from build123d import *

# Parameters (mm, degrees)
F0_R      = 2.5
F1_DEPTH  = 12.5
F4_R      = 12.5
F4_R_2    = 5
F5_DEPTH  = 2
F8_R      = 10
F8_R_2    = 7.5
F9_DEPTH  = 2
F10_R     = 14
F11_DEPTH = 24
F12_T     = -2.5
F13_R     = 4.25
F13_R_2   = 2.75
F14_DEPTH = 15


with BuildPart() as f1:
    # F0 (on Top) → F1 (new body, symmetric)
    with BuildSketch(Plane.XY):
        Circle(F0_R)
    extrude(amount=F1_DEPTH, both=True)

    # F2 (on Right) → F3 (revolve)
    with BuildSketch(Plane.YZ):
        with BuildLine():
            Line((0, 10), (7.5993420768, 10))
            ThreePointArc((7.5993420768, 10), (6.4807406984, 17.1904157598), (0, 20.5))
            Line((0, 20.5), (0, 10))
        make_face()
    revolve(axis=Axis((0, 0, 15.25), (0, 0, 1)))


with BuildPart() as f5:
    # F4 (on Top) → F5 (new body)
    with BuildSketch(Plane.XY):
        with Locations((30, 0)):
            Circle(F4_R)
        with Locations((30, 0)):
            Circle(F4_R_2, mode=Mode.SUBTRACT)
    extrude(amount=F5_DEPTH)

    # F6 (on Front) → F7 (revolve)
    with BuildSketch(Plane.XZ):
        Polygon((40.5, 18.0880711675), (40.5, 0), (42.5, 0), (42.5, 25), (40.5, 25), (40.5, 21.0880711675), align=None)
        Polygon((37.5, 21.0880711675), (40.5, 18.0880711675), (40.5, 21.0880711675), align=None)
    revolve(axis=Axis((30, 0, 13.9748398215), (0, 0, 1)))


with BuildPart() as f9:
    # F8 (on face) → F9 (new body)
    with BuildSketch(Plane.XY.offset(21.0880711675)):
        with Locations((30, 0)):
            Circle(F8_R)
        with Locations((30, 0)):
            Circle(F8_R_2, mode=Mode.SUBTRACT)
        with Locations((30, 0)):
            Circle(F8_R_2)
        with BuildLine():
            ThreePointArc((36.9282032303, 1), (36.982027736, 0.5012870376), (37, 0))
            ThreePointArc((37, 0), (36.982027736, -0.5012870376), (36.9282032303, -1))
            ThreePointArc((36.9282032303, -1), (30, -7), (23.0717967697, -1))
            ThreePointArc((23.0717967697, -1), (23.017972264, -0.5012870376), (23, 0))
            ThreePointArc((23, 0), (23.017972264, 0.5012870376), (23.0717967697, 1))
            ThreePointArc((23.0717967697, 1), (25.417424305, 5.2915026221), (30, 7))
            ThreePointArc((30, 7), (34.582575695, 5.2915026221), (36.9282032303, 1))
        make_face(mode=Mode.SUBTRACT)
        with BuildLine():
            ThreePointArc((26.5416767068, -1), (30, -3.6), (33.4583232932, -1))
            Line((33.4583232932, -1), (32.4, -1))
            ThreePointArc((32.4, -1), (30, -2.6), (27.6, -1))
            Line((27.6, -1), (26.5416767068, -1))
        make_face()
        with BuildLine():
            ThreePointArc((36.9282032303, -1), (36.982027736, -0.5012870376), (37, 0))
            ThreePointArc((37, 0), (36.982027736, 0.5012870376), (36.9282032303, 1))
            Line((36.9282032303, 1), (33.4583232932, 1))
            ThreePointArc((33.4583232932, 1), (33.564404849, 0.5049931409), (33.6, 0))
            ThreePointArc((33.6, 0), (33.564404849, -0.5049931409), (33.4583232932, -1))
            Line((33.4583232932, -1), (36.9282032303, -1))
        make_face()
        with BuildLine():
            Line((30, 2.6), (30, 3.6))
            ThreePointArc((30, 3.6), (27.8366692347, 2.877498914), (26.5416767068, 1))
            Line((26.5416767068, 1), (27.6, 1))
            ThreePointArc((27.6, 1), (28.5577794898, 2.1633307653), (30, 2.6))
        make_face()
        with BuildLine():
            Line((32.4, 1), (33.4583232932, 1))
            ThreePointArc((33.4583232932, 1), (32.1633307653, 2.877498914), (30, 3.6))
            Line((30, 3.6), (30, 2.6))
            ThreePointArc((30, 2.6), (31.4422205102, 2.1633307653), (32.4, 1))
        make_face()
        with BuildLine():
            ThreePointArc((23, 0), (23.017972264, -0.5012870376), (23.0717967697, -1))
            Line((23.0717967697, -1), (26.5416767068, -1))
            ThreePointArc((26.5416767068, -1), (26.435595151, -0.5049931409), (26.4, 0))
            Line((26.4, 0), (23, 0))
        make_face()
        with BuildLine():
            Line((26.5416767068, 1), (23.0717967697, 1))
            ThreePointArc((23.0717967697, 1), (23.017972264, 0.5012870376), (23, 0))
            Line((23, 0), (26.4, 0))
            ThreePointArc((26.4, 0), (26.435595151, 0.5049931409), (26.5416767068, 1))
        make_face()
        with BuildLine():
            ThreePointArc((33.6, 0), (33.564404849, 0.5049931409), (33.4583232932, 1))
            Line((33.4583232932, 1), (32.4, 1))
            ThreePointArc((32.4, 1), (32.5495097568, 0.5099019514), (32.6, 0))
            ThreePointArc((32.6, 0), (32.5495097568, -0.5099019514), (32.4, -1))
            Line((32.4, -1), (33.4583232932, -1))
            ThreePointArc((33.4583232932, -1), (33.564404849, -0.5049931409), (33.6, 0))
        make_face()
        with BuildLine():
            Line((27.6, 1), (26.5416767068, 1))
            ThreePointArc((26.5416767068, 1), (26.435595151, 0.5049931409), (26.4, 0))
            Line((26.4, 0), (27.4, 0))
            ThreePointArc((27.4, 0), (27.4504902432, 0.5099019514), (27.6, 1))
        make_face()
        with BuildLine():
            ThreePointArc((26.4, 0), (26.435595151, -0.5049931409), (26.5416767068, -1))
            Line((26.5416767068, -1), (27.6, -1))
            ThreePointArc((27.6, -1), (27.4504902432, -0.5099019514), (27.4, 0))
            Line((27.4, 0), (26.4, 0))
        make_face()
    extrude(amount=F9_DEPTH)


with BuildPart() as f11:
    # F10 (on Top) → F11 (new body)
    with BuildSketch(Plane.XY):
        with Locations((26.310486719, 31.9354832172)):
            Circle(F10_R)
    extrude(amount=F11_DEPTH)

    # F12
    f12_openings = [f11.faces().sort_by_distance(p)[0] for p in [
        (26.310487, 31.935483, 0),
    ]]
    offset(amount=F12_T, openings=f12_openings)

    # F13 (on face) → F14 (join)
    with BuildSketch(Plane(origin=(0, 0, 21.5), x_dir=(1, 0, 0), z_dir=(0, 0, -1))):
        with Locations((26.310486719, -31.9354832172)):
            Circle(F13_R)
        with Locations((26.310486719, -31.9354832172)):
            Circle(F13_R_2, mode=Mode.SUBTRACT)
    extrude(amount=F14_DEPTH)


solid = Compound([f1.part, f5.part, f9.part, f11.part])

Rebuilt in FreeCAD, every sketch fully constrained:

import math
import FreeCAD as App
import Part
import Sketcher

V = App.Vector
Q = App.Units.Quantity


def faces_at(feature, points):
    """Names of the faces that lie closest to the given points."""
    faces = feature.Shape.Faces
    near = lambda p: min(range(len(faces)), key=lambda i: faces[i].distToShape(Part.Vertex(*p))[0])
    return sorted({f"Face{near(p) + 1}" for p in points})


def add_polygon(sketch, points):
    """Adds a closed chain of lines whose ends are joined by coincident constraints."""
    first, n = sketch.GeometryCount, len(points)
    for a, b in zip(points, points[1:] + points[:1]):
        sketch.addGeometry(Part.LineSegment(App.Vector(*a, 0), App.Vector(*b, 0)), False)
    for i in range(n):
        sketch.addConstraint(Sketcher.Constraint("Coincident", first + i, 2, first + (i + 1) % n, 1))

doc = App.newDocument("Part")
body = doc.addObject("PartDesign::Body", "Body")

# Sketch on XY plane
sketch1 = doc.addObject("Sketcher::SketchObject", "Sketch")
body.addObject(sketch1)
sketch1.AttachmentSupport = (doc.XY_Plane, [""])
sketch1.MapMode = "FlatFace"
sketch1.addGeometry(Part.Circle(V(0, 0, 0), V(0, 0, 1), 2.5), False)
sketch1.addConstraint(Sketcher.Constraint("Coincident", 0, 3, -1, 1))
sketch1.addConstraint(Sketcher.Constraint("Diameter", 0, Q("5 mm")))
pad1 = doc.addObject("PartDesign::Pad", "Pad")
body.addObject(pad1)
pad1.Profile = sketch1
pad1.Length = 25
pad1.Midplane = True

# Sketch on YZ plane
sketch2 = doc.addObject("Sketcher::SketchObject", "Sketch001")
body.addObject(sketch2)
sketch2.AttachmentSupport = (doc.YZ_Plane, [""])
sketch2.MapMode = "FlatFace"
sketch2.addGeometry(Part.LineSegment(V(0, 10, 0), V(8, 10, 0)), False)
sketch2.addGeometry(Part.ArcOfCircle(Part.Circle(V(0, 12, 0), V(0, 0, 1), 8), math.radians(-18), math.radians(90)), False)
sketch2.addGeometry(Part.LineSegment(V(0, 20, 0), V(0, 10, 0)), False)
sketch2.addConstraint(Sketcher.Constraint("Coincident", 0, 2, 1, 1))
sketch2.addConstraint(Sketcher.Constraint("Coincident", 1, 2, 2, 1))
sketch2.addConstraint(Sketcher.Constraint("Coincident", 2, 2, 0, 1))
sketch2.addConstraint(Sketcher.Constraint("Horizontal", 0))
sketch2.addConstraint(Sketcher.Constraint("Vertical", 2))
sketch2.addConstraint(Sketcher.Constraint("PointOnObject", 1, 3, -2))
sketch2.addConstraint(Sketcher.Constraint("PointOnObject", 1, 2, -2))
sketch2.addConstraint(Sketcher.Constraint("Radius", 1, Q("8 mm")))
sketch2.addConstraint(Sketcher.Constraint("DistanceY", 2, 2, 2, 1, Q("10.5 mm")))
sketch2.addConstraint(Sketcher.Constraint("DistanceY", -1, 1, 0, 2, Q("10 mm")))
revolution = doc.addObject("PartDesign::Revolution", "Revolution")
body.addObject(revolution)
revolution.Profile = sketch2
revolution.ReferenceAxis = (sketch2, ["V_Axis"])
revolution.Angle = 360
body2 = doc.addObject("PartDesign::Body", "Body001")

# Sketch on XY plane
sketch3 = doc.addObject("Sketcher::SketchObject", "Sketch002")
body2.addObject(sketch3)
sketch3.AttachmentSupport = (doc.getObject("XY_Plane001"), [""])
sketch3.MapMode = "FlatFace"
sketch3.addGeometry(Part.Circle(V(30, 0, 0), V(0, 0, 1), 12), False)
sketch3.addGeometry(Part.Circle(V(30, 0, 0), V(0, 0, 1), 5), False)
sketch3.addConstraint(Sketcher.Constraint("Coincident", 1, 3, 0, 3))
sketch3.addConstraint(Sketcher.Constraint("PointOnObject", 0, 3, -1))
sketch3.addConstraint(Sketcher.Constraint("Diameter", 0, Q("25 mm")))
sketch3.addConstraint(Sketcher.Constraint("Diameter", 1, Q("10 mm")))
sketch3.addConstraint(Sketcher.Constraint("DistanceX", -1, 1, 0, 3, Q("30 mm")))
pad2 = doc.addObject("PartDesign::Pad", "Pad001")
body2.addObject(pad2)
pad2.Profile = sketch3
pad2.Length = 2

# Sketch on XZ plane
sketch4 = doc.addObject("Sketcher::SketchObject", "Sketch003")
body2.addObject(sketch4)
sketch4.AttachmentSupport = (doc.getObject("XZ_Plane001"), [""])
sketch4.MapMode = "FlatFace"
add_polygon(sketch4, [(40.5, 0), (42.5, 0), (42.5, 25), (40.5, 25), (40.5, 21.1), (37.5, 21.1), (40.5, 18.1)])  # lines 0-6
sketch4.addGeometry(Part.LineSegment(V(30, 0, 0), V(30, 25, 0)), True)  # axis
sketch4.addConstraint(Sketcher.Constraint("Horizontal", 0))
sketch4.addConstraint(Sketcher.Constraint("Vertical", 1))
sketch4.addConstraint(Sketcher.Constraint("Horizontal", 2))
sketch4.addConstraint(Sketcher.Constraint("Vertical", 3))
sketch4.addConstraint(Sketcher.Constraint("Horizontal", 4))
sketch4.addConstraint(Sketcher.Constraint("Vertical", 6))
sketch4.addConstraint(Sketcher.Constraint("Vertical", 7))
sketch4.addConstraint(Sketcher.Constraint("PointOnObject", 0, 2, -1))
sketch4.addConstraint(Sketcher.Constraint("PointOnObject", 7, 1, -1))
sketch4.addConstraint(Sketcher.Constraint("Horizontal", 2, 2, 7, 2))
sketch4.addConstraint(Sketcher.Constraint("Vertical", 3, 2, 5, 2))
sketch4.addConstraint(Sketcher.Constraint("DistanceX", 0, 1, 0, 2, Q("2 mm")))
sketch4.addConstraint(Sketcher.Constraint("DistanceX", 4, 2, 4, 1, Q("3 mm")))
sketch4.addConstraint(Sketcher.Constraint("DistanceY", 1, 1, 1, 2, Q("25 mm")))
sketch4.addConstraint(Sketcher.Constraint("Angle", 5, Q("-45 deg")))
sketch4.addConstraint(Sketcher.Constraint("DistanceX", -1, 1, 7, 1, Q("30 mm")))
sketch4.addConstraint(Sketcher.Constraint("DistanceX", -1, 1, 0, 2, Q("42.5 mm")))
sketch4.addConstraint(Sketcher.Constraint("DistanceY", 3, 2, 3, 1, Q("3.911929 mm")))
revolution2 = doc.addObject("PartDesign::Revolution", "Revolution001")
body2.addObject(revolution2)
revolution2.Profile = sketch4
revolution2.ReferenceAxis = (sketch4, ["Axis0"])
revolution2.Angle = 360
body3 = doc.addObject("PartDesign::Body", "Body002")

# Sketch on XY plane
sketch5 = doc.addObject("Sketcher::SketchObject", "Sketch004")
body3.addObject(sketch5)
sketch5.AttachmentSupport = (doc.getObject("XY_Plane002"), [""])
sketch5.MapMode = "FlatFace"
sketch5.AttachmentOffset = App.Placement(V(0, 0, 21.088071), App.Rotation())
sketch5.addGeometry(Part.Circle(V(30, 0, 0), V(0, 0, 1), 10), False)
sketch5.addGeometry(Part.LineSegment(V(23.1, -1, 0), V(26.5, -1, 0)), False)
sketch5.addGeometry(Part.ArcOfCircle(Part.Circle(V(30, 0, 0), V(0, 0, 1), 3.6), math.radians(-164), math.radians(-16)), False)
sketch5.addGeometry(Part.LineSegment(V(33.5, -1, 0), V(36.9, -1, 0)), False)
sketch5.addGeometry(Part.ArcOfCircle(Part.Circle(V(30, 0, 0), V(0, 0, 1), 7), math.radians(-172), math.radians(-8)), False)
sketch5.addGeometry(Part.ArcOfCircle(Part.Circle(V(30, 0, 0), V(0, 0, 1), 2.6), math.radians(-157), math.radians(-23)), False)
sketch5.addGeometry(Part.ArcOfCircle(Part.Circle(V(30, 0, 0), V(0, 0, 1), 2.6), math.radians(180), math.radians(203)), False)
sketch5.addGeometry(Part.ArcOfCircle(Part.Circle(V(30, 0, 0), V(0, 0, 1), 2.6), math.radians(157), math.radians(180)), False)
sketch5.addGeometry(Part.ArcOfCircle(Part.Circle(V(30, 0, 0), V(0, 0, 1), 2.6), math.radians(90), math.radians(157)), False)
sketch5.addGeometry(Part.ArcOfCircle(Part.Circle(V(30, 0, 0), V(0, 0, 1), 2.6), math.radians(23), math.radians(90)), False)
sketch5.addGeometry(Part.ArcOfCircle(Part.Circle(V(30, 0, 0), V(0, 0, 1), 2.6), math.radians(0), math.radians(23)), False)
sketch5.addGeometry(Part.ArcOfCircle(Part.Circle(V(30, 0, 0), V(0, 0, 1), 2.6), math.radians(-23), math.radians(0)), False)
sketch5.addGeometry(Part.ArcOfCircle(Part.Circle(V(30, 0, 0), V(0, 0, 1), 3.6), math.radians(90), math.radians(164)), False)
sketch5.addGeometry(Part.LineSegment(V(26.5, 1, 0), V(23.1, 1, 0)), False)
sketch5.addGeometry(Part.ArcOfCircle(Part.Circle(V(30, 0, 0), V(0, 0, 1), 7), math.radians(8), math.radians(172)), False)
sketch5.addGeometry(Part.LineSegment(V(36.9, 1, 0), V(33.5, 1, 0)), False)
sketch5.addGeometry(Part.ArcOfCircle(Part.Circle(V(30, 0, 0), V(0, 0, 1), 3.6), math.radians(16), math.radians(90)), False)
sketch5.addConstraint(Sketcher.Constraint("Coincident", 1, 2, 2, 1))
sketch5.addConstraint(Sketcher.Constraint("Coincident", 2, 2, 3, 1))
sketch5.addConstraint(Sketcher.Constraint("Coincident", 3, 2, 4, 2))
sketch5.addConstraint(Sketcher.Constraint("Coincident", 4, 1, 1, 1))
sketch5.addConstraint(Sketcher.Constraint("Tangent", 5, 1, 6, 2))
sketch5.addConstraint(Sketcher.Constraint("Tangent", 6, 1, 7, 2))
sketch5.addConstraint(Sketcher.Constraint("Tangent", 7, 1, 8, 2))
sketch5.addConstraint(Sketcher.Constraint("Tangent", 8, 1, 9, 2))
sketch5.addConstraint(Sketcher.Constraint("Tangent", 9, 1, 10, 2))
sketch5.addConstraint(Sketcher.Constraint("Tangent", 10, 1, 11, 2))
sketch5.addConstraint(Sketcher.Constraint("Tangent", 11, 1, 5, 2))
sketch5.addConstraint(Sketcher.Constraint("Coincident", 12, 2, 13, 1))
sketch5.addConstraint(Sketcher.Constraint("Coincident", 13, 2, 14, 2))
sketch5.addConstraint(Sketcher.Constraint("Coincident", 14, 1, 15, 1))
sketch5.addConstraint(Sketcher.Constraint("Coincident", 15, 2, 16, 1))
sketch5.addConstraint(Sketcher.Constraint("Tangent", 16, 2, 12, 1))
sketch5.addConstraint(Sketcher.Constraint("Horizontal", 1))
sketch5.addConstraint(Sketcher.Constraint("Horizontal", 3))
sketch5.addConstraint(Sketcher.Constraint("Horizontal", 13))
sketch5.addConstraint(Sketcher.Constraint("Horizontal", 15))
sketch5.addConstraint(Sketcher.Constraint("Coincident", 2, 3, 0, 3))
sketch5.addConstraint(Sketcher.Constraint("Coincident", 4, 3, 0, 3))
sketch5.addConstraint(Sketcher.Constraint("Coincident", 5, 3, 0, 3))
sketch5.addConstraint(Sketcher.Constraint("Coincident", 7, 3, 0, 3))
sketch5.addConstraint(Sketcher.Constraint("Coincident", 9, 3, 0, 3))
sketch5.addConstraint(Sketcher.Constraint("Coincident", 12, 3, 0, 3))
sketch5.addConstraint(Sketcher.Constraint("Coincident", 14, 3, 0, 3))
sketch5.addConstraint(Sketcher.Constraint("Equal", 2, 12))
sketch5.addConstraint(Sketcher.Constraint("Equal", 4, 14))
sketch5.addConstraint(Sketcher.Constraint("Equal", 12, 16))
sketch5.addConstraint(Sketcher.Constraint("Symmetric", 5, 1, 7, 1, -1))
sketch5.addConstraint(Sketcher.Constraint("PointOnObject", 6, 1, -1))
sketch5.addConstraint(Sketcher.Constraint("PointOnObject", 10, 1, -1))
sketch5.addConstraint(Sketcher.Constraint("Horizontal", 1, 2, 2, 2))
sketch5.addConstraint(Sketcher.Constraint("Horizontal", 4, 1, 5, 1))
sketch5.addConstraint(Sketcher.Constraint("Horizontal", 7, 1, 9, 1))
sketch5.addConstraint(Sketcher.Constraint("Horizontal", 5, 1, 11, 1))
sketch5.addConstraint(Sketcher.Constraint("Horizontal", 9, 1, 12, 2))
sketch5.addConstraint(Sketcher.Constraint("Horizontal", 13, 2, 14, 1))
sketch5.addConstraint(Sketcher.Constraint("Vertical", 16, 3, 8, 1))
sketch5.addConstraint(Sketcher.Constraint("Vertical", 8, 1, 16, 2))
sketch5.addConstraint(Sketcher.Constraint("Diameter", 0, Q("20 mm")))
sketch5.addConstraint(Sketcher.Constraint("Radius", 4, Q("7 mm")))
sketch5.addConstraint(Sketcher.Constraint("Radius", 2, Q("3.6 mm")))
sketch5.addConstraint(Sketcher.Constraint("Radius", 5, Q("2.6 mm")))
sketch5.addConstraint(Sketcher.Constraint("DistanceX", -1, 1, 0, 3, Q("30 mm")))
sketch5.addConstraint(Sketcher.Constraint("DistanceY", 1, 2, -1, 1, Q("1 mm")))
pad3 = doc.addObject("PartDesign::Pad", "Pad002")
body3.addObject(pad3)
pad3.Profile = sketch5
pad3.Length = 2
body4 = doc.addObject("PartDesign::Body", "Body003")

# Sketch on XY plane
sketch6 = doc.addObject("Sketcher::SketchObject", "Sketch005")
body4.addObject(sketch6)
sketch6.AttachmentSupport = (doc.getObject("XY_Plane003"), [""])
sketch6.MapMode = "FlatFace"
sketch6.addGeometry(Part.Circle(V(26, 32, 0), V(0, 0, 1), 14), False)
sketch6.addConstraint(Sketcher.Constraint("Diameter", 0, Q("28 mm")))
sketch6.addConstraint(Sketcher.Constraint("DistanceX", -1, 1, 0, 3, Q("26.310487 mm")))
sketch6.addConstraint(Sketcher.Constraint("DistanceY", -1, 1, 0, 3, Q("31.935483 mm")))
pad4 = doc.addObject("PartDesign::Pad", "Pad003")
body4.addObject(pad4)
pad4.Profile = sketch6
pad4.Length = 24
doc.recompute()

thickness = doc.addObject("PartDesign::Thickness", "Thickness")
body4.addObject(thickness)
thickness.Base = (pad4, faces_at(pad4, [(26.31, 31.935, 0)]))
thickness.Value = 2.5
thickness.Reversed = True
thickness.Join = "Arc"

# Sketch on XY plane
sketch7 = doc.addObject("Sketcher::SketchObject", "Sketch006")
body4.addObject(sketch7)
sketch7.AttachmentSupport = (doc.getObject("XY_Plane003"), [""])
sketch7.MapMode = "FlatFace"
sketch7.AttachmentOffset = App.Placement(V(0, 0, 21.5), App.Rotation())
sketch7.addGeometry(Part.Circle(V(26.3, 31.9, 0), V(0, 0, 1), 4.2), False)
sketch7.addGeometry(Part.Circle(V(26.3, 31.9, 0), V(0, 0, 1), 2.8), False)
sketch7.addConstraint(Sketcher.Constraint("Coincident", 1, 3, 0, 3))
sketch7.addConstraint(Sketcher.Constraint("Diameter", 0, Q("8.5 mm")))
sketch7.addConstraint(Sketcher.Constraint("Diameter", 1, Q("5.5 mm")))
sketch7.addConstraint(Sketcher.Constraint("DistanceX", -1, 1, 0, 3, Q("26.310487 mm")))
sketch7.addConstraint(Sketcher.Constraint("DistanceY", -1, 1, 0, 3, Q("31.935483 mm")))
pad5 = doc.addObject("PartDesign::Pad", "Pad004")
body4.addObject(pad5)
pad5.Profile = sketch7
pad5.Length = 15
pad5.Reversed = True

doc.recompute()
